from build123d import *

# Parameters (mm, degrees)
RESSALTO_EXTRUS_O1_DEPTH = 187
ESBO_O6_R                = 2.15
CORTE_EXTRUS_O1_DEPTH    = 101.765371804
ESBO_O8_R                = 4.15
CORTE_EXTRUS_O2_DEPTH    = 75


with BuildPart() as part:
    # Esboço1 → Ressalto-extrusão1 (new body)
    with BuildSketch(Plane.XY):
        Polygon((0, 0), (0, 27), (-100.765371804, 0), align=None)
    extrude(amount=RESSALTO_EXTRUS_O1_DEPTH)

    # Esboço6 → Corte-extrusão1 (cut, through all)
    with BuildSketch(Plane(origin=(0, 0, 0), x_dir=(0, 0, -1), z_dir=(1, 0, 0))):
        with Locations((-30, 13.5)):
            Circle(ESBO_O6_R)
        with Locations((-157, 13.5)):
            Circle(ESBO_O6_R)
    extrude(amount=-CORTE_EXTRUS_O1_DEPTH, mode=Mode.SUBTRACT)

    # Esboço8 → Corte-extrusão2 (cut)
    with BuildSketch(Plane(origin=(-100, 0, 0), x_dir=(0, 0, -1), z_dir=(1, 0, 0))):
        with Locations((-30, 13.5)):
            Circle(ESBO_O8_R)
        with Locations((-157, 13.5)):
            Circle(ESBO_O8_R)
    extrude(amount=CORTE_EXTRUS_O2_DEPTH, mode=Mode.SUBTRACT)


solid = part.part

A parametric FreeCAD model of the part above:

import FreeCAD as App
import Part
import Sketcher
Q = App.Units.Quantity


def add_polygon(sketch, points):
    """Adds a closed chain of lines whose ends are joined by coincident constraints."""
    first, n = sketch.GeometryCount, len(points)
    for a, b in zip(points, points[1:] + points[:1]):
        sketch.addGeometry(Part.LineSegment(App.Vector(*a, 0), App.Vector(*b, 0)), False)
    for i in range(n):
        sketch.addConstraint(Sketcher.Constraint("Coincident", first + i, 2, first + (i + 1) % n, 1))

doc = App.newDocument("Part")
body = doc.addObject("PartDesign::Body", "Body")

# Sketch on XY plane
sketch1 = body.newObject("Sketcher::SketchObject", "Sketch")
sketch1.AttachmentSupport = (doc.getObject("XY_Plane"), [""])
sketch1.MapMode = "FlatFace"
add_polygon(sketch1, [(0, 0), (0, 27), (-101, 0)])  # lines 0-2
sketch1.addConstraint([
    Sketcher.Constraint("Vertical", 0),
    Sketcher.Constraint("Horizontal", 2),
    Sketcher.Constraint("Coincident", 2, 2, -1, 1),
    Sketcher.Constraint("DistanceY", 0, 1, 0, 2, 27.0),
    Sketcher.Constraint("Angle", 1, Q("-165 deg")),
])
pad1 = body.newObject("PartDesign::Pad", "Pad")
pad1.Profile = sketch1
pad1.Length = 187

# Sketch on YZ plane
sketch2 = body.newObject("Sketcher::SketchObject", "Sketch001")
sketch2.AttachmentSupport = (doc.getObject("YZ_Plane"), [""])
sketch2.MapMode = "FlatFace"
sketch2.addGeometry([
    Part.Circle(App.Vector(13.5, 30, 0), App.Vector(0, 0, 1), 2.1),
    Part.Circle(App.Vector(13.5, 157, 0), App.Vector(0, 0, 1), 2.1),
], False)
sketch2.addConstraint([
    Sketcher.Constraint("Equal", 0, 1),
    Sketcher.Constraint("Vertical", 0, 3, 1, 3),
    Sketcher.Constraint("Diameter", 0, 4.3),
    Sketcher.Constraint("DistanceY", -1, 1, 0, 3, 30.0),
    Sketcher.Constraint("DistanceY", -1, 1, 1, 3, 157.0),
    Sketcher.Constraint("DistanceX", -1, 1, 0, 3, 13.5),
])
pocket1 = body.newObject("PartDesign::Pocket", "Pocket")
pocket1.Profile = sketch2
pocket1.Type = "ThroughAll"

# Sketch on YZ plane
sketch3 = body.newObject("Sketcher::SketchObject", "Sketch002")
sketch3.AttachmentSupport = (doc.getObject("YZ_Plane"), [""])
sketch3.MapMode = "FlatFace"
sketch3.AttachmentOffset = App.Placement(App.Vector(0, 0, -100), App.Rotation())
sketch3.addGeometry([
    Part.Circle(App.Vector(13.5, 30, 0), App.Vector(0, 0, 1), 4.2),
    Part.Circle(App.Vector(13.5, 157, 0), App.Vector(0, 0, 1), 4.2),
], False)
sketch3.addConstraint([
    Sketcher.Constraint("Equal", 0, 1),
    Sketcher.Constraint("Vertical", 0, 3, 1, 3),
    Sketcher.Constraint("Diameter", 0, 8.3),
    Sketcher.Constraint("DistanceY", -1, 1, 0, 3, 30.0),
    Sketcher.Constraint("DistanceY", -1, 1, 1, 3, 157.0),
    Sketcher.Constraint("DistanceX", -1, 1, 0, 3, 13.5),
])
pocket2 = body.newObject("PartDesign::Pocket", "Pocket001")
pocket2.Profile = sketch3
pocket2.Length = 75
pocket2.Reversed = True

doc.recompute()
